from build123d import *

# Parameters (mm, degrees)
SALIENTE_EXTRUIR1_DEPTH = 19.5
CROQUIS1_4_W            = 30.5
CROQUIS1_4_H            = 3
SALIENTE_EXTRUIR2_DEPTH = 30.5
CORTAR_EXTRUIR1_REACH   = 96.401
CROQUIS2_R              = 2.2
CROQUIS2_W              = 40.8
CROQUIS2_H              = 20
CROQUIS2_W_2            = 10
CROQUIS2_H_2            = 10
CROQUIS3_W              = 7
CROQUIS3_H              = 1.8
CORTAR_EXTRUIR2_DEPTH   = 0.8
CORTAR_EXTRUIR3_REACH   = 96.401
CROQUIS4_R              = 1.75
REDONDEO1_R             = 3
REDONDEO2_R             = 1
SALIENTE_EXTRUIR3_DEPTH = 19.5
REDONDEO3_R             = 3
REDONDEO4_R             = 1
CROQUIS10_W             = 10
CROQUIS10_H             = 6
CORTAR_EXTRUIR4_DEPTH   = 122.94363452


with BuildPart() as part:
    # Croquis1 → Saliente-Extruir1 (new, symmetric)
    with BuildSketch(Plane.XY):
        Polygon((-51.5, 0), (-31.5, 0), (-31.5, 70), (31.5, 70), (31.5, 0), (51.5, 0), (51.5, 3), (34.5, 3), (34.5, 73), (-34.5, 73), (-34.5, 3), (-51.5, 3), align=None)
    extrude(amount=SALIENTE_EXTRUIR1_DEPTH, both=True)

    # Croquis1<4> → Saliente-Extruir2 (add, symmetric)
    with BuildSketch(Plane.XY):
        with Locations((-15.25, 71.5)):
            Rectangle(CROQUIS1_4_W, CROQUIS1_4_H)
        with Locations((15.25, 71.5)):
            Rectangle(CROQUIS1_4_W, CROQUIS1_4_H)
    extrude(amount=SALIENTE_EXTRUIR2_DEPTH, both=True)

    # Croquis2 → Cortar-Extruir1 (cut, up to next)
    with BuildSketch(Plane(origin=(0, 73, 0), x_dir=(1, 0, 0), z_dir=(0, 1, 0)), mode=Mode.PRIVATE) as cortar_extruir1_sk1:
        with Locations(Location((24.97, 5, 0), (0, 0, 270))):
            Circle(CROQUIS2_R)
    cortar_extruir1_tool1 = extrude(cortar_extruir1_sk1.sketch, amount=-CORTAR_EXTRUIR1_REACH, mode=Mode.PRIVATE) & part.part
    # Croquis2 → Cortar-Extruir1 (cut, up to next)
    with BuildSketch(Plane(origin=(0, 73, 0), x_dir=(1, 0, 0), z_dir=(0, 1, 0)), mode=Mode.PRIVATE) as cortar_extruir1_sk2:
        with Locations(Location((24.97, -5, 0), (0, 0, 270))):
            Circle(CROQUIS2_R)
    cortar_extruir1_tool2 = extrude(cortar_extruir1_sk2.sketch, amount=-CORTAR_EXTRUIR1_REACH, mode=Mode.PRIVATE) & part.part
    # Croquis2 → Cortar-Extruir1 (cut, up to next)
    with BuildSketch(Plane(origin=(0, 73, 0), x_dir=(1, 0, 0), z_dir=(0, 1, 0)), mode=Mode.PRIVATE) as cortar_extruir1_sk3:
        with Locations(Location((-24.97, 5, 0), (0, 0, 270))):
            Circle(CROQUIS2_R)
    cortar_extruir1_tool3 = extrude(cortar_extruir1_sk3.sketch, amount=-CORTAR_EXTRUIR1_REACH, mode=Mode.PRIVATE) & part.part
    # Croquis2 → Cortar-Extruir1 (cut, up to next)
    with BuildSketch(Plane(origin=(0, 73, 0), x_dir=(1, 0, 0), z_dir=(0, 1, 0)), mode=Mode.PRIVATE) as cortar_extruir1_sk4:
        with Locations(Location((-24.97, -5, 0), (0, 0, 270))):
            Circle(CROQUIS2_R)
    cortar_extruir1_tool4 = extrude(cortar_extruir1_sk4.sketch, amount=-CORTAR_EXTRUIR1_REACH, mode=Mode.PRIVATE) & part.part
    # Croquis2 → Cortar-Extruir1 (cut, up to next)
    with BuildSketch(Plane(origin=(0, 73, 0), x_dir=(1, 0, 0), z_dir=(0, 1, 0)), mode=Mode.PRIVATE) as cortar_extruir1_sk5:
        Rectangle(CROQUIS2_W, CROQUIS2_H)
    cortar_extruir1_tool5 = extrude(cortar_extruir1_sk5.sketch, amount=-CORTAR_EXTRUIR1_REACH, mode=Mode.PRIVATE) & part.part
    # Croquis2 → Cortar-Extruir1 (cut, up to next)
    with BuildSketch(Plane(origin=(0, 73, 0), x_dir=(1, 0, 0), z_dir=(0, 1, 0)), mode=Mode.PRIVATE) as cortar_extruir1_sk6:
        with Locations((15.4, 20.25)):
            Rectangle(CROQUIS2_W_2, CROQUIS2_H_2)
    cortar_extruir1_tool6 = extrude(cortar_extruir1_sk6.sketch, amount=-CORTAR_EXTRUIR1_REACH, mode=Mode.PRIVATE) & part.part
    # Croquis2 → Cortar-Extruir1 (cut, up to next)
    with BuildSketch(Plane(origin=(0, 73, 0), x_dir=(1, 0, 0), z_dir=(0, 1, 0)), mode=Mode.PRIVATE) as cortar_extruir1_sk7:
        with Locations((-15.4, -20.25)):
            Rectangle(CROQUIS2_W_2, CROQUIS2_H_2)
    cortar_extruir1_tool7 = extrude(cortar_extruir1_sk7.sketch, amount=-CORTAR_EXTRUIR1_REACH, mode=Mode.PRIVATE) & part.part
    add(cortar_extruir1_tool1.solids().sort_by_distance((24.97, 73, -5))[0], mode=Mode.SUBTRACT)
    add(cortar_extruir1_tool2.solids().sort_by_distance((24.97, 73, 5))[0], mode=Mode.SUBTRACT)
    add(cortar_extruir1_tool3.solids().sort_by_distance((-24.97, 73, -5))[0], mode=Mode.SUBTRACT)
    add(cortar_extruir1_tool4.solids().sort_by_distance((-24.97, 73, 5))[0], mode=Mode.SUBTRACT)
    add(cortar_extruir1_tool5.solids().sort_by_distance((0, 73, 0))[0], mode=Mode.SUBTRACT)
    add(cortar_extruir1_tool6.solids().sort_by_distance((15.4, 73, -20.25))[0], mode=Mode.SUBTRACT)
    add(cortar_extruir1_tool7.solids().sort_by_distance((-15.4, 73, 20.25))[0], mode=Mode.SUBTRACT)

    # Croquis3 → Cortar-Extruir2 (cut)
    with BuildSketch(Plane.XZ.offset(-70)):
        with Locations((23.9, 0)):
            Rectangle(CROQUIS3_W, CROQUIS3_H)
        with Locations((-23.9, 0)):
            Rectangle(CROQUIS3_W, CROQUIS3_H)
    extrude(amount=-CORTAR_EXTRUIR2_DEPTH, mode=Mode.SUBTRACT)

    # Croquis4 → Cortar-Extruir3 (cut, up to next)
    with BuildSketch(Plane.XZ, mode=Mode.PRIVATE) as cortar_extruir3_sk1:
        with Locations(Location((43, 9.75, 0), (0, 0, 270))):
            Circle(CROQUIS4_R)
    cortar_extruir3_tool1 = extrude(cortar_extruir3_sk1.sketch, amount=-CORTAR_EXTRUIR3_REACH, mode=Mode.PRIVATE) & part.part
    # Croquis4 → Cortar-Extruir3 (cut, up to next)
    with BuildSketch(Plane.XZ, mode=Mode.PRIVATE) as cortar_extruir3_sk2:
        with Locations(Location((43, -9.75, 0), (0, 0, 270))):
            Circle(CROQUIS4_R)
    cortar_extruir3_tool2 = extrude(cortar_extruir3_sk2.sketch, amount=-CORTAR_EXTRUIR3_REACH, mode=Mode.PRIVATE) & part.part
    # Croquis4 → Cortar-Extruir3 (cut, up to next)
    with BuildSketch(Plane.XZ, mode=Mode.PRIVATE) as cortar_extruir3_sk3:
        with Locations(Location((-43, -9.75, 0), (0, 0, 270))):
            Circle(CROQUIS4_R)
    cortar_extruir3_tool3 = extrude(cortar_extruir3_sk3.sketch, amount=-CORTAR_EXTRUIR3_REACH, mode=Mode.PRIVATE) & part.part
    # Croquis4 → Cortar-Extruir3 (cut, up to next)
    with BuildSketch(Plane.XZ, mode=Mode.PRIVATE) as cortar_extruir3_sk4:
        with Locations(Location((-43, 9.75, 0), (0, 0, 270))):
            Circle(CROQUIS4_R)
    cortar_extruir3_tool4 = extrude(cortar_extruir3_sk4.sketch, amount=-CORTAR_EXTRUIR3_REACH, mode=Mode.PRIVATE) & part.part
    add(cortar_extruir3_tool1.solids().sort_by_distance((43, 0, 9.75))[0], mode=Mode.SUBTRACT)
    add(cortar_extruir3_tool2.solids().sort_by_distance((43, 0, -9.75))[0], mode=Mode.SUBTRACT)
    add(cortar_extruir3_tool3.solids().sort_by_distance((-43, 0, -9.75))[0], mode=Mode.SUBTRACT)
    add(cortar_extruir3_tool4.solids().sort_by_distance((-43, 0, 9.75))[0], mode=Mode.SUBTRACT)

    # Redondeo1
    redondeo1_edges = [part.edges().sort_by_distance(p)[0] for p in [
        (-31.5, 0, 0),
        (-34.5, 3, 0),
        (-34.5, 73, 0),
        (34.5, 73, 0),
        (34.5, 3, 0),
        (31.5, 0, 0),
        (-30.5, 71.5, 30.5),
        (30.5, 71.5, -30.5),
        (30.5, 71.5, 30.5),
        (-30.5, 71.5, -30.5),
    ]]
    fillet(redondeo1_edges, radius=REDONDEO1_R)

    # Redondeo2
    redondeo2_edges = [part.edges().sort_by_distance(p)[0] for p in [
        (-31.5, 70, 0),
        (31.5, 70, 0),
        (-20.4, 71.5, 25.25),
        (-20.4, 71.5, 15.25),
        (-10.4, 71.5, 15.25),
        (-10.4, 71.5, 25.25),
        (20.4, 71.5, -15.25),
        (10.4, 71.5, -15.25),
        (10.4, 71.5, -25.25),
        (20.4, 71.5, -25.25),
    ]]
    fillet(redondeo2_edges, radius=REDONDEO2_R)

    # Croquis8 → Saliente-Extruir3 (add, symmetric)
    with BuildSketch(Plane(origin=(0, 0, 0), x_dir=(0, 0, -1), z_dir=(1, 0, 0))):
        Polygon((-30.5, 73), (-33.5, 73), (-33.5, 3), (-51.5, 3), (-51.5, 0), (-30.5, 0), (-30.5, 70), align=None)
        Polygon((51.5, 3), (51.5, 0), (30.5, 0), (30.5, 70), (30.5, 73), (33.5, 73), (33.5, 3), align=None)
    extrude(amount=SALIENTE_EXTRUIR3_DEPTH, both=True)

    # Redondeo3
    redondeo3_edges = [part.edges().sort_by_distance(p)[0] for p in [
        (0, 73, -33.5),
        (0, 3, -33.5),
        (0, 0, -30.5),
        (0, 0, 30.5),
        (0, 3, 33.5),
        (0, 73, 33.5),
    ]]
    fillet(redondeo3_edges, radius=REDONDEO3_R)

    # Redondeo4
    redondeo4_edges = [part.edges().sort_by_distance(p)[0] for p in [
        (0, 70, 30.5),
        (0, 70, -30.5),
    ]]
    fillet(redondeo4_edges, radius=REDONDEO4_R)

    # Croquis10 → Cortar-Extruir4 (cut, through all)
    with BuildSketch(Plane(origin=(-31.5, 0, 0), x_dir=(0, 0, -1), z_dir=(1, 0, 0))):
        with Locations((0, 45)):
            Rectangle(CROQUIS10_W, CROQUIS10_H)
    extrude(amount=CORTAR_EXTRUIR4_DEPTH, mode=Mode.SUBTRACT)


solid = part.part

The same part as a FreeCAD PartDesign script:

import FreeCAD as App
import Part
import Sketcher
from FreeCAD import Vector


def edges_at(feature, points):
    """Names of the edges that pass closest to the given points."""
    edges = feature.Shape.Edges
    near = lambda p: min(range(len(edges)), key=lambda i: edges[i].distToShape(Part.Vertex(*p))[0])
    return sorted({f"Edge{near(p) + 1}" for p in points})

doc = App.newDocument("Part")
body = doc.addObject("PartDesign::Body", "Body")

sketch1 = body.newObject("Sketcher::SketchObject", "Sketch")
sketch1.AttachmentSupport = (doc.getObject("XY_Plane"), [""])
sketch1.MapMode = "FlatFace"
sketch1.addGeometry([
    Part.LineSegment(Vector(-51.5, 0, 0), Vector(-31.5, 0, 0)),
    Part.LineSegment(Vector(-31.5, 0, 0), Vector(-31.5, 70, 0)),
    Part.LineSegment(Vector(-31.5, 70, 0), Vector(31.5, 70, 0)),
    Part.LineSegment(Vector(31.5, 70, 0), Vector(31.5, 0, 0)),
    Part.LineSegment(Vector(31.5, 0, 0), Vector(51.5, 0, 0)),
    Part.LineSegment(Vector(51.5, 0, 0), Vector(51.5, 3, 0)),
    Part.LineSegment(Vector(51.5, 3, 0), Vector(34.5, 3, 0)),
    Part.LineSegment(Vector(34.5, 3, 0), Vector(34.5, 73, 0)),
    Part.LineSegment(Vector(34.5, 73, 0), Vector(-34.5, 73, 0)),
    Part.LineSegment(Vector(-34.5, 73, 0), Vector(-34.5, 3, 0)),
    Part.LineSegment(Vector(-34.5, 3, 0), Vector(-51.5, 3, 0)),
    Part.LineSegment(Vector(-51.5, 3, 0), Vector(-51.5, 0, 0)),
], False)
sketch1.addConstraint([
    Sketcher.Constraint("Coincident", 0, 2, 1, 1),
    Sketcher.Constraint("Coincident", 1, 2, 2, 1),
    Sketcher.Constraint("Coincident", 2, 2, 3, 1),
    Sketcher.Constraint("Coincident", 3, 2, 4, 1),
    Sketcher.Constraint("Coincident", 4, 2, 5, 1),
    Sketcher.Constraint("Coincident", 5, 2, 6, 1),
    Sketcher.Constraint("Coincident", 6, 2, 7, 1),
    Sketcher.Constraint("Coincident", 7, 2, 8, 1),
    Sketcher.Constraint("Coincident", 8, 2, 9, 1),
    Sketcher.Constraint("Coincident", 9, 2, 10, 1),
    Sketcher.Constraint("Coincident", 10, 2, 11, 1),
    Sketcher.Constraint("Coincident", 11, 2, 0, 1),
    Sketcher.Constraint("Horizontal", 0),
    Sketcher.Constraint("Vertical", 1),
    Sketcher.Constraint("Horizontal", 2),
    Sketcher.Constraint("Vertical", 3),
    Sketcher.Constraint("Horizontal", 4),
    Sketcher.Constraint("Vertical", 5),
    Sketcher.Constraint("Horizontal", 6),
    Sketcher.Constraint("Vertical", 7),
    Sketcher.Constraint("Horizontal", 8),
    Sketcher.Constraint("Vertical", 9),
    Sketcher.Constraint("Horizontal", 10),
    Sketcher.Constraint("Vertical", 11),
    Sketcher.Constraint("Symmetric", 0, 2, 3, 2, -1, 1),
    Sketcher.Constraint("Symmetric", 6, 2, 9, 2, -2),
    Sketcher.Constraint("Symmetric", 4, 2, 11, 2, -2),
    Sketcher.Constraint("Equal", 3, 7),
    Sketcher.Constraint("DistanceX", 0, 1, 0, 2, 20.0),
    Sketcher.Constraint("DistanceX", 2, 1, 2, 2, 63.0),
    Sketcher.Constraint("DistanceX", 6, 2, 6, 1, 17.0),
    Sketcher.Constraint("DistanceY", 1, 1, 1, 2, 70.0),
    Sketcher.Constraint("DistanceY", 5, 1, 5, 2, 3.0),
])
pad1 = body.newObject("PartDesign::Pad", "Pad")
pad1.Profile = sketch1
pad1.Length = 39
pad1.Midplane = True

sketch2 = body.newObject("Sketcher::SketchObject", "Sketch001")
sketch2.AttachmentSupport = (doc.getObject("XY_Plane"), [""])
sketch2.MapMode = "FlatFace"
sketch2.addGeometry([
    Part.LineSegment(Vector(-30.5, 73, 0), Vector(-30.5, 70, 0)),
    Part.LineSegment(Vector(-30.5, 70, 0), Vector(30.5, 70, 0)),
    Part.LineSegment(Vector(30.5, 70, 0), Vector(30.5, 73, 0)),
    Part.LineSegment(Vector(30.5, 73, 0), Vector(-30.5, 73, 0)),
], False)
sketch2.addConstraint([
    Sketcher.Constraint("Coincident", 0, 2, 1, 1),
    Sketcher.Constraint("Coincident", 1, 2, 2, 1),
    Sketcher.Constraint("Coincident", 2, 2, 3, 1),
    Sketcher.Constraint("Coincident", 3, 2, 0, 1),
    Sketcher.Constraint("Vertical", 0),
    Sketcher.Constraint("Horizontal", 1),
    Sketcher.Constraint("Vertical", 2),
    Sketcher.Constraint("Horizontal", 3),
    Sketcher.Constraint("DistanceX", 1, 1, 1, 2, 61.0),
    Sketcher.Constraint("DistanceY", 0, 2, 0, 1, 3.0),
    Sketcher.Constraint("DistanceY", -1, 1, 0, 2, 70.0),
    Sketcher.Constraint("DistanceX", 0, 2, -1, 1, 30.5),
])
pad2 = body.newObject("PartDesign::Pad", "Pad001")
pad2.Profile = sketch2
pad2.Length = 61
pad2.Midplane = True

sketch3 = body.newObject("Sketcher::SketchObject", "Sketch002")
sketch3.AttachmentSupport = (doc.getObject("XZ_Plane"), [""])
sketch3.MapMode = "FlatFace"
sketch3.AttachmentOffset = App.Placement(Vector(0, 0, -73), App.Rotation())
sketch3.addGeometry(Part.Circle(Vector(24.97, -5, 0), Vector(0, 0, 1), 2.2), False)
sketch3.addConstraint([
    Sketcher.Constraint("Diameter", 0, 4.4),
    Sketcher.Constraint("DistanceY", 0, 3, -1, 1, 5.0),
    Sketcher.Constraint("DistanceX", -1, 1, 0, 3, 24.97),
])
pocket1 = body.newObject("PartDesign::Pocket", "Pocket")
pocket1.Profile = sketch3
pocket1.Type = "UpToFirst"
pocket1.Reversed = True

sketch4 = body.newObject("Sketcher::SketchObject", "Sketch003")
sketch4.AttachmentSupport = (doc.getObject("XZ_Plane"), [""])
sketch4.MapMode = "FlatFace"
sketch4.AttachmentOffset = App.Placement(Vector(0, 0, -73), App.Rotation())
sketch4.addGeometry(Part.Circle(Vector(24.97, 5, 0), Vector(0, 0, 1), 2.2), False)
sketch4.addConstraint([
    Sketcher.Constraint("Diameter", 0, 4.4),
    Sketcher.Constraint("DistanceY", -1, 1, 0, 3, 5.0),
    Sketcher.Constraint("DistanceX", -1, 1, 0, 3, 24.97),
])
pocket2 = body.newObject("PartDesign::Pocket", "Pocket001")
pocket2.Profile = sketch4
pocket2.Type = "UpToFirst"
pocket2.Reversed = True

sketch5 = body.newObject("Sketcher::SketchObject", "Sketch004")
sketch5.AttachmentSupport = (doc.getObject("XZ_Plane"), [""])
sketch5.MapMode = "FlatFace"
sketch5.AttachmentOffset = App.Placement(Vector(0, 0, -73), App.Rotation())
sketch5.addGeometry(Part.Circle(Vector(-24.97, -5, 0), Vector(0, 0, 1), 2.2), False)
sketch5.addConstraint([
    Sketcher.Constraint("Diameter", 0, 4.4),
    Sketcher.Constraint("DistanceY", 0, 3, -1, 1, 5.0),
    Sketcher.Constraint("DistanceX", 0, 3, -1, 1, 24.97),
])
pocket3 = body.newObject("PartDesign::Pocket", "Pocket002")
pocket3.Profile = sketch5
pocket3.Type = "UpToFirst"
pocket3.Reversed = True

sketch6 = body.newObject("Sketcher::SketchObject", "Sketch005")
sketch6.AttachmentSupport = (doc.getObject("XZ_Plane"), [""])
sketch6.MapMode = "FlatFace"
sketch6.AttachmentOffset = App.Placement(Vector(0, 0, -73), App.Rotation())
sketch6.addGeometry(Part.Circle(Vector(-24.97, 5, 0), Vector(0, 0, 1), 2.2), False)
sketch6.addConstraint([
    Sketcher.Constraint("Diameter", 0, 4.4),
    Sketcher.Constraint("DistanceY", -1, 1, 0, 3, 5.0),
    Sketcher.Constraint("DistanceX", 0, 3, -1, 1, 24.97),
])
pocket4 = body.newObject("PartDesign::Pocket", "Pocket003")
pocket4.Profile = sketch6
pocket4.Type = "UpToFirst"
pocket4.Reversed = True

sketch7 = body.newObject("Sketcher::SketchObject", "Sketch006")
sketch7.AttachmentSupport = (doc.getObject("XZ_Plane"), [""])
sketch7.MapMode = "FlatFace"
sketch7.AttachmentOffset = App.Placement(Vector(0, 0, -73), App.Rotation())
sketch7.addGeometry([
    Part.LineSegment(Vector(-20.4, -10, 0), Vector(-20.4, 10, 0)),
    Part.LineSegment(Vector(-20.4, 10, 0), Vector(20.4, 10, 0)),
    Part.LineSegment(Vector(20.4, 10, 0), Vector(20.4, -10, 0)),
    Part.LineSegment(Vector(20.4, -10, 0), Vector(-20.4, -10, 0)),
], False)
sketch7.addConstraint([
    Sketcher.Constraint("Coincident", 0, 2, 1, 1),
    Sketcher.Constraint("Coincident", 1, 2, 2, 1),
    Sketcher.Constraint("Coincident", 2, 2, 3, 1),
    Sketcher.Constraint("Coincident", 3, 2, 0, 1),
    Sketcher.Constraint("Vertical", 0),
    Sketcher.Constraint("Horizontal", 1),
    Sketcher.Constraint("Vertical", 2),
    Sketcher.Constraint("Horizontal", 3),
    Sketcher.Constraint("Symmetric", 0, 2, 2, 2, -1, 1),
    Sketcher.Constraint("DistanceY", 0, 1, 0, 2, 20.0),
    Sketcher.Constraint("DistanceX", 1, 1, 1, 2, 40.8),
])
pocket5 = body.newObject("PartDesign::Pocket", "Pocket004")
pocket5.Profile = sketch7
pocket5.Type = "UpToFirst"
pocket5.Reversed = True

sketch8 = body.newObject("Sketcher::SketchObject", "Sketch007")
sketch8.AttachmentSupport = (doc.getObject("XZ_Plane"), [""])
sketch8.MapMode = "FlatFace"
sketch8.AttachmentOffset = App.Placement(Vector(0, 0, -73), App.Rotation())
sketch8.addGeometry([
    Part.LineSegment(Vector(10.4, -25.25, 0), Vector(10.4, -15.25, 0)),
    Part.LineSegment(Vector(10.4, -15.25, 0), Vector(20.4, -15.25, 0)),
    Part.LineSegment(Vector(20.4, -15.25, 0), Vector(20.4, -25.25, 0)),
    Part.LineSegment(Vector(20.4, -25.25, 0), Vector(10.4, -25.25, 0)),
], False)
sketch8.addConstraint([
    Sketcher.Constraint("Coincident", 0, 2, 1, 1),
    Sketcher.Constraint("Coincident", 1, 2, 2, 1),
    Sketcher.Constraint("Coincident", 2, 2, 3, 1),
    Sketcher.Constraint("Coincident", 3, 2, 0, 1),
    Sketcher.Constraint("Vertical", 0),
    Sketcher.Constraint("Horizontal", 1),
    Sketcher.Constraint("Vertical", 2),
    Sketcher.Constraint("Horizontal", 3),
    Sketcher.Constraint("Equal", 3, 0),
    Sketcher.Constraint("DistanceX", 1, 1, 1, 2, 10.0),
    Sketcher.Constraint("DistanceX", -1, 1, 0, 2, 10.4),
    Sketcher.Constraint("DistanceY", 0, 2, -1, 1, 15.25),
])
pocket6 = body.newObject("PartDesign::Pocket", "Pocket005")
pocket6.Profile = sketch8
pocket6.Type = "UpToFirst"
pocket6.Reversed = True

sketch9 = body.newObject("Sketcher::SketchObject", "Sketch008")
sketch9.AttachmentSupport = (doc.getObject("XZ_Plane"), [""])
sketch9.MapMode = "FlatFace"
sketch9.AttachmentOffset = App.Placement(Vector(0, 0, -73), App.Rotation())
sketch9.addGeometry([
    Part.LineSegment(Vector(-20.4, 15.25, 0), Vector(-20.4, 25.25, 0)),
    Part.LineSegment(Vector(-20.4, 25.25, 0), Vector(-10.4, 25.25, 0)),
    Part.LineSegment(Vector(-10.4, 25.25, 0), Vector(-10.4, 15.25, 0)),
    Part.LineSegment(Vector(-10.4, 15.25, 0), Vector(-20.4, 15.25, 0)),
], False)
sketch9.addConstraint([
    Sketcher.Constraint("Coincident", 0, 2, 1, 1),
    Sketcher.Constraint("Coincident", 1, 2, 2, 1),
    Sketcher.Constraint("Coincident", 2, 2, 3, 1),
    Sketcher.Constraint("Coincident", 3, 2, 0, 1),
    Sketcher.Constraint("Vertical", 0),
    Sketcher.Constraint("Horizontal", 1),
    Sketcher.Constraint("Vertical", 2),
    Sketcher.Constraint("Horizontal", 3),
    Sketcher.Constraint("Equal", 3, 0),
    Sketcher.Constraint("DistanceX", 1, 1, 1, 2, 10.0),
    Sketcher.Constraint("DistanceX", 0, 2, -1, 1, 20.4),
    Sketcher.Constraint("DistanceY", -1, 1, 0, 2, 25.25),
])
pocket7 = body.newObject("PartDesign::Pocket", "Pocket006")
pocket7.Profile = sketch9
pocket7.Type = "UpToFirst"
pocket7.Reversed = True

sketch10 = body.newObject("Sketcher::SketchObject", "Sketch009")
sketch10.AttachmentSupport = (doc.getObject("XZ_Plane"), [""])
sketch10.MapMode = "FlatFace"
sketch10.AttachmentOffset = App.Placement(Vector(0, 0, -70), App.Rotation())
sketch10.addGeometry([
    Part.LineSegment(Vector(20.4, 0.9, 0), Vector(20.4, -0.9, 0)),
    Part.LineSegment(Vector(20.4, -0.9, 0), Vector(27.4, -0.9, 0)),
    Part.LineSegment(Vector(27.4, -0.9, 0), Vector(27.4, 0.9, 0)),
    Part.LineSegment(Vector(27.4, 0.9, 0), Vector(20.4, 0.9, 0)),
    Part.LineSegment(Vector(-27.4, 0.9, 0), Vector(-27.4, -0.9, 0)),
    Part.LineSegment(Vector(-27.4, -0.9, 0), Vector(-20.4, -0.9, 0)),
    Part.LineSegment(Vector(-20.4, -0.9, 0), Vector(-20.4, 0.9, 0)),
    Part.LineSegment(Vector(-20.4, 0.9, 0), Vector(-27.4, 0.9, 0)),
], False)
sketch10.addConstraint([
    Sketcher.Constraint("Coincident", 0, 2, 1, 1),
    Sketcher.Constraint("Coincident", 1, 2, 2, 1),
    Sketcher.Constraint("Coincident", 2, 2, 3, 1),
    Sketcher.Constraint("Coincident", 3, 2, 0, 1),
    Sketcher.Constraint("Coincident", 4, 2, 5, 1),
    Sketcher.Constraint("Coincident", 5, 2, 6, 1),
    Sketcher.Constraint("Coincident", 6, 2, 7, 1),
    Sketcher.Constraint("Coincident", 7, 2, 4, 1),
    Sketcher.Constraint("Vertical", 0),
    Sketcher.Constraint("Horizontal", 1),
    Sketcher.Constraint("Vertical", 2),
    Sketcher.Constraint("Horizontal", 3),
    Sketcher.Constraint("Vertical", 4),
    Sketcher.Constraint("Horizontal", 5),
    Sketcher.Constraint("Vertical", 6),
    Sketcher.Constraint("Horizontal", 7),
    Sketcher.Constraint("Symmetric", 2, 2, 4, 2, -1, 1),
    Sketcher.Constraint("Symmetric", 0, 2, 6, 2, -1, 1),
    Sketcher.Constraint("Horizontal", 1, 2, 4, 2),
    Sketcher.Constraint("DistanceX", 1, 1, 1, 2, 7.0),
    Sketcher.Constraint("DistanceY", 0, 2, 0, 1, 1.8),
    Sketcher.Constraint("DistanceX", -1, 1, 0, 2, 20.4),
])
pocket8 = body.newObject("PartDesign::Pocket", "Pocket007")
pocket8.Profile = sketch10
pocket8.Length = 0.8

sketch11 = body.newObject("Sketcher::SketchObject", "Sketch010")
sketch11.AttachmentSupport = (doc.getObject("XZ_Plane"), [""])
sketch11.MapMode = "FlatFace"
sketch11.addGeometry(Part.Circle(Vector(43, 9.75, 0), Vector(0, 0, 1), 1.75), False)
sketch11.addConstraint([
    Sketcher.Constraint("Diameter", 0, 3.5),
    Sketcher.Constraint("DistanceX", -1, 1, 0, 3, 43.0),
    Sketcher.Constraint("DistanceY", -1, 1, 0, 3, 9.75),
])
pocket9 = body.newObject("PartDesign::Pocket", "Pocket008")
pocket9.Profile = sketch11
pocket9.Type = "UpToFirst"

sketch12 = body.newObject("Sketcher::SketchObject", "Sketch011")
sketch12.AttachmentSupport = (doc.getObject("XZ_Plane"), [""])
sketch12.MapMode = "FlatFace"
sketch12.addGeometry(Part.Circle(Vector(43, -9.75, 0), Vector(0, 0, 1), 1.75), False)
sketch12.addConstraint([
    Sketcher.Constraint("Diameter", 0, 3.5),
    Sketcher.Constraint("DistanceX", -1, 1, 0, 3, 43.0),
    Sketcher.Constraint("DistanceY", 0, 3, -1, 1, 9.75),
])
pocket10 = body.newObject("PartDesign::Pocket", "Pocket009")
pocket10.Profile = sketch12
pocket10.Type = "UpToFirst"

sketch13 = body.newObject("Sketcher::SketchObject", "Sketch012")
sketch13.AttachmentSupport = (doc.getObject("XZ_Plane"), [""])
sketch13.MapMode = "FlatFace"
sketch13.addGeometry(Part.Circle(Vector(-43, -9.75, 0), Vector(0, 0, 1), 1.75), False)
sketch13.addConstraint([
    Sketcher.Constraint("Diameter", 0, 3.5),
    Sketcher.Constraint("DistanceX", 0, 3, -1, 1, 43.0),
    Sketcher.Constraint("DistanceY", 0, 3, -1, 1, 9.75),
])
pocket11 = body.newObject("PartDesign::Pocket", "Pocket010")
pocket11.Profile = sketch13
pocket11.Type = "UpToFirst"

sketch14 = body.newObject("Sketcher::SketchObject", "Sketch013")
sketch14.AttachmentSupport = (doc.getObject("XZ_Plane"), [""])
sketch14.MapMode = "FlatFace"
sketch14.addGeometry(Part.Circle(Vector(-43, 9.75, 0), Vector(0, 0, 1), 1.75), False)
sketch14.addConstraint([
    Sketcher.Constraint("Diameter", 0, 3.5),
    Sketcher.Constraint("DistanceX", 0, 3, -1, 1, 43.0),
    Sketcher.Constraint("DistanceY", -1, 1, 0, 3, 9.75),
])
pocket12 = body.newObject("PartDesign::Pocket", "Pocket011")
pocket12.Profile = sketch14
pocket12.Type = "UpToFirst"
doc.recompute()

fillet = body.newObject("PartDesign::Fillet", "Fillet")
fillet.Base = (pocket12, edges_at(pocket12, [
    (-31.5, 0, 0),
    (-34.5, 3, 0),
    (-34.5, 73, 0),
    (34.5, 73, 0),
    (34.5, 3, 0),
    (31.5, 0, 0),
    (-30.5, 71.5, 30.5),
    (30.5, 71.5, -30.5),
    (30.5, 71.5, 30.5),
    (-30.5, 71.5, -30.5),
]))
fillet.Radius = 3
doc.recompute()

fillet2 = body.newObject("PartDesign::Fillet", "Fillet001")
fillet2.Base = (fillet, edges_at(fillet, [
    (-31.5, 70, 0),
    (31.5, 70, 0),
    (-20.4, 71.5, 25.25),
    (-20.4, 71.5, 15.25),
    (-10.4, 71.5, 15.25),
    (-10.4, 71.5, 25.25),
    (20.4, 71.5, -15.25),
    (10.4, 71.5, -15.25),
    (10.4, 71.5, -25.25),
    (20.4, 71.5, -25.25),
]))
fillet2.Radius = 1

sketch15 = body.newObject("Sketcher::SketchObject", "Sketch014")
sketch15.AttachmentSupport = (doc.getObject("YZ_Plane"), [""])
sketch15.MapMode = "FlatFace"
sketch15.addGeometry([
    Part.LineSegment(Vector(73, 30.5, 0), Vector(73, 33.5, 0)),
    Part.LineSegment(Vector(73, 33.5, 0), Vector(3, 33.5, 0)),
    Part.LineSegment(Vector(3, 33.5, 0), Vector(3, 51.5, 0)),
    Part.LineSegment(Vector(3, 51.5, 0), Vector(0, 51.5, 0)),
    Part.LineSegment(Vector(0, 51.5, 0), Vector(0, 30.5, 0)),
    Part.LineSegment(Vector(0, 30.5, 0), Vector(73, 30.5, 0)),
    Part.LineSegment(Vector(0, -51.5, 0), Vector(3, -51.5, 0)),
    Part.LineSegment(Vector(3, -51.5, 0), Vector(3, -33.5, 0)),
    Part.LineSegment(Vector(3, -33.5, 0), Vector(73, -33.5, 0)),
    Part.LineSegment(Vector(73, -33.5, 0), Vector(73, -30.5, 0)),
    Part.LineSegment(Vector(73, -30.5, 0), Vector(0, -30.5, 0)),
    Part.LineSegment(Vector(0, -30.5, 0), Vector(0, -51.5, 0)),
], False)
sketch15.addConstraint([
    Sketcher.Constraint("Coincident", 0, 2, 1, 1),
    Sketcher.Constraint("Coincident", 1, 2, 2, 1),
    Sketcher.Constraint("Coincident", 2, 2, 3, 1),
    Sketcher.Constraint("Coincident", 3, 2, 4, 1),
    Sketcher.Constraint("Coincident", 4, 2, 5, 1),
    Sketcher.Constraint("Coincident", 5, 2, 0, 1),
    Sketcher.Constraint("Coincident", 6, 2, 7, 1),
    Sketcher.Constraint("Coincident", 7, 2, 8, 1),
    Sketcher.Constraint("Coincident", 8, 2, 9, 1),
    Sketcher.Constraint("Coincident", 9, 2, 10, 1),
    Sketcher.Constraint("Coincident", 10, 2, 11, 1),
    Sketcher.Constraint("Coincident", 11, 2, 6, 1),
    Sketcher.Constraint("Vertical", 0),
    Sketcher.Constraint("Horizontal", 1),
    Sketcher.Constraint("Vertical", 2),
    Sketcher.Constraint("Horizontal", 3),
    Sketcher.Constraint("Vertical", 4),
    Sketcher.Constraint("Horizontal", 5),
    Sketcher.Constraint("Horizontal", 6),
    Sketcher.Constraint("Vertical", 7),
    Sketcher.Constraint("Horizontal", 8),
    Sketcher.Constraint("Vertical", 9),
    Sketcher.Constraint("Horizontal", 10),
    Sketcher.Constraint("Vertical", 11),
    Sketcher.Constraint("Symmetric", 4, 2, 10, 2, -1, 1),
    Sketcher.Constraint("Symmetric", 2, 2, 6, 2, -1),
    Sketcher.Constraint("Symmetric", 0, 2, 8, 2, -1),
    Sketcher.Constraint("PointOnObject", 3, 2, -2),
    Sketcher.Constraint("Equal", 6, 0),
    Sketcher.Constraint("DistanceX", 1, 2, 1, 1, 70.0),
    Sketcher.Constraint("DistanceX", 3, 2, 3, 1, 3.0),
    Sketcher.Constraint("DistanceY", 2, 1, 2, 2, 18.0),
    Sketcher.Constraint("DistanceY", 6, 2, 4, 2, 82.0),
])
pad3 = body.newObject("PartDesign::Pad", "Pad002")
pad3.Profile = sketch15
pad3.Length = 39
pad3.Midplane = True
doc.recompute()

fillet3 = body.newObject("PartDesign::Fillet", "Fillet002")
fillet3.Base = (pad3, edges_at(pad3, [
    (0, 73, -33.5),
    (0, 3, -33.5),
    (0, 0, -30.5),
    (0, 0, 30.5),
    (0, 3, 33.5),
    (0, 73, 33.5),
]))
fillet3.Radius = 3
doc.recompute()

fillet4 = body.newObject("PartDesign::Fillet", "Fillet003")
fillet4.Base = (fillet3, edges_at(fillet3, [(0, 70, 30.5), (0, 70, -30.5)]))
fillet4.Radius = 1

sketch16 = body.newObject("Sketcher::SketchObject", "Sketch015")
sketch16.AttachmentSupport = (doc.getObject("YZ_Plane"), [""])
sketch16.MapMode = "FlatFace"
sketch16.AttachmentOffset = App.Placement(Vector(0, 0, -31.5), App.Rotation())
sketch16.addGeometry([
    Part.LineSegment(Vector(48, 5, 0), Vector(42, 5, 0)),
    Part.LineSegment(Vector(42, 5, 0), Vector(42, -5, 0)),
    Part.LineSegment(Vector(42, -5, 0), Vector(48, -5, 0)),
    Part.LineSegment(Vector(48, -5, 0), Vector(48, 5, 0)),
], False)
sketch16.addConstraint([
    Sketcher.Constraint("Coincident", 0, 2, 1, 1),
    Sketcher.Constraint("Coincident", 1, 2, 2, 1),
    Sketcher.Constraint("Coincident", 2, 2, 3, 1),
    Sketcher.Constraint("Coincident", 3, 2, 0, 1),
    Sketcher.Constraint("Horizontal", 0),
    Sketcher.Constraint("Vertical", 1),
    Sketcher.Constraint("Horizontal", 2),
    Sketcher.Constraint("Vertical", 3),
    Sketcher.Constraint("DistanceX", 0, 2, 0, 1, 6.0),
    Sketcher.Constraint("DistanceY", 1, 2, 1, 1, 10.0),
    Sketcher.Constraint("DistanceX", -1, 1, 0, 2, 42.0),
    Sketcher.Constraint("DistanceY", -1, 1, 0, 2, 5.0),
])
pocket13 = body.newObject("PartDesign::Pocket", "Pocket012")
pocket13.Profile = sketch16
pocket13.Type = "ThroughAll"
pocket13.Reversed = True

doc.recompute()
